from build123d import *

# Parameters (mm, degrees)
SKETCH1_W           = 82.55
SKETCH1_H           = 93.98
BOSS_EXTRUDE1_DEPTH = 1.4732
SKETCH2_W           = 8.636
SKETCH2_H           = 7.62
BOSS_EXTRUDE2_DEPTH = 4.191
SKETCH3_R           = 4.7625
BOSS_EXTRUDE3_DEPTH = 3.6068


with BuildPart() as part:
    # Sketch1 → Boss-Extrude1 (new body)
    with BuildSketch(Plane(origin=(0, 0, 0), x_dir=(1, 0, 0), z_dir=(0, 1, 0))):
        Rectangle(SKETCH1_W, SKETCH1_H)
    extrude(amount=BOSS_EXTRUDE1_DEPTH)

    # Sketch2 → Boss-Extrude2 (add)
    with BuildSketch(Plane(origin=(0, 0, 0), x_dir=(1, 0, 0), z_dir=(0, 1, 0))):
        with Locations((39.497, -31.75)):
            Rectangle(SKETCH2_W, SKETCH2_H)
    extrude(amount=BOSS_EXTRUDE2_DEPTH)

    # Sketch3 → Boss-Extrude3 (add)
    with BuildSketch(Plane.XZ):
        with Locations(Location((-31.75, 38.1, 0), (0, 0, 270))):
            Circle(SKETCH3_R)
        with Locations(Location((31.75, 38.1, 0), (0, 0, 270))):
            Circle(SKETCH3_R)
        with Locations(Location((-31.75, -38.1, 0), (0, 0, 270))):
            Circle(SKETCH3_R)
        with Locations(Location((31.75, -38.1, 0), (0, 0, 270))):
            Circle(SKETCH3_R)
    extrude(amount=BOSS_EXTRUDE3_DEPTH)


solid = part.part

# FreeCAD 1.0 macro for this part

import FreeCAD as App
import Part
import Sketcher
from FreeCAD import Vector
Q = App.Units.Quantity

doc = App.newDocument("Part")
body = doc.addObject("PartDesign::Body", "Body")

# Sketch on XZ plane
sketch1 = body.newObject("Sketcher::SketchObject", "Sketch")
sketch1.AttachmentSupport = (doc.getObject("XZ_Plane"), [""])
sketch1.MapMode = "FlatFace"
sketch1.addGeometry([
    Part.LineSegment(Vector(-41, -47, 0), Vector(-41, 47, 0)),
    Part.LineSegment(Vector(-41, 47, 0), Vector(41, 47, 0)),
    Part.LineSegment(Vector(41, 47, 0), Vector(41, -47, 0)),
    Part.LineSegment(Vector(41, -47, 0), Vector(-41, -47, 0)),
], False)
sketch1.addConstraint([
    Sketcher.Constraint("Coincident", 0, 2, 1, 1),
    Sketcher.Constraint("Coincident", 1, 2, 2, 1),
    Sketcher.Constraint("Coincident", 2, 2, 3, 1),
    Sketcher.Constraint("Coincident", 3, 2, 0, 1),
    Sketcher.Constraint("Vertical", 0),
    Sketcher.Constraint("Horizontal", 1),
    Sketcher.Constraint("Vertical", 2),
    Sketcher.Constraint("Horizontal", 3),
    Sketcher.Constraint("Symmetric", 0, 2, 2, 2, -1, 1),
    Sketcher.Constraint("DistanceY", 0, 1, 0, 2, Q("3.7 in")),
    Sketcher.Constraint("DistanceX", 1, 1, 1, 2, Q("3.25 in")),
])
pad1 = body.newObject("PartDesign::Pad", "Pad")
pad1.Profile = sketch1
pad1.Length = Q("0.058 in")
pad1.Reversed = True

# Sketch on XZ plane
sketch2 = body.newObject("Sketcher::SketchObject", "Sketch001")
sketch2.AttachmentSupport = (doc.getObject("XZ_Plane"), [""])
sketch2.MapMode = "FlatFace"
sketch2.addGeometry([
    Part.LineSegment(Vector(35, 28, 0), Vector(35, 36, 0)),
    Part.LineSegment(Vector(35, 36, 0), Vector(44, 36, 0)),
    Part.LineSegment(Vector(44, 36, 0), Vector(44, 28, 0)),
    Part.LineSegment(Vector(44, 28, 0), Vector(35, 28, 0)),
], False)
sketch2.addConstraint([
    Sketcher.Constraint("Coincident", 0, 2, 1, 1),
    Sketcher.Constraint("Coincident", 1, 2, 2, 1),
    Sketcher.Constraint("Coincident", 2, 2, 3, 1),
    Sketcher.Constraint("Coincident", 3, 2, 0, 1),
    Sketcher.Constraint("Vertical", 0),
    Sketcher.Constraint("Horizontal", 1),
    Sketcher.Constraint("Vertical", 2),
    Sketcher.Constraint("Horizontal", 3),
    Sketcher.Constraint("DistanceY", 0, 1, 0, 2, Q("0.3 in")),
    Sketcher.Constraint("DistanceX", 1, 1, 1, 2, Q("0.34 in")),
    Sketcher.Constraint("DistanceY", -1, 1, 0, 2, Q("1.4 in")),
    Sketcher.Constraint("DistanceX", -1, 1, 0, 2, Q("1.385 in")),
])
pad2 = body.newObject("PartDesign::Pad", "Pad001")
pad2.Profile = sketch2
pad2.Length = Q("0.165 in")
pad2.Reversed = True

# Sketch on XZ plane
sketch3 = body.newObject("Sketcher::SketchObject", "Sketch002")
sketch3.AttachmentSupport = (doc.getObject("XZ_Plane"), [""])
sketch3.MapMode = "FlatFace"
sketch3.addGeometry([
    Part.Circle(Vector(-31.8, 38.1, 0), Vector(0, 0, 1), 4.8),
    Part.Circle(Vector(31.8, 38.1, 0), Vector(0, 0, 1), 4.8),
    Part.Circle(Vector(-31.8, -38.1, 0), Vector(0, 0, 1), 4.8),
    Part.Circle(Vector(31.8, -38.1, 0), Vector(0, 0, 1), 4.8),
], False)
sketch3.addConstraint([
    Sketcher.Constraint("Equal", 0, 1),
    Sketcher.Constraint("Equal", 1, 2),
    Sketcher.Constraint("Equal", 2, 3),
    Sketcher.Constraint("Symmetric", 1, 3, 2, 3, -1, 1),
    Sketcher.Constraint("Symmetric", 0, 3, 3, 3, -1, 1),
    Sketcher.Constraint("Symmetric", 0, 3, 1, 3, -2),
    Sketcher.Constraint("Diameter", 0, Q("0.375 in")),
    Sketcher.Constraint("DistanceY", 2, 3, 0, 3, Q("3 in")),
    Sketcher.Constraint("DistanceX", 0, 3, 1, 3, Q("2.5 in")),
])
pad3 = body.newObject("PartDesign::Pad", "Pad002")
pad3.Profile = sketch3
pad3.Length = Q("0.142 in")

doc.recompute()
